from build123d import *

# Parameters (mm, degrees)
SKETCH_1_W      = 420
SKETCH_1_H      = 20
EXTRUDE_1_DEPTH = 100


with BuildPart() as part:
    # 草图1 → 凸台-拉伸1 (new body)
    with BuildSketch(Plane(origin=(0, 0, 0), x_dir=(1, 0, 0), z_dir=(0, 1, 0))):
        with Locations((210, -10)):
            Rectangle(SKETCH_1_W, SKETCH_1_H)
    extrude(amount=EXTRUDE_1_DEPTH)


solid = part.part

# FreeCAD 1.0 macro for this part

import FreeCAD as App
import Part
import Sketcher


def add_polygon(sketch, points):
    """Adds a closed chain of lines whose ends are joined by coincident constraints."""
    first, n = sketch.GeometryCount, len(points)
    for a, b in zip(points, points[1:] + points[:1]):
        sketch.addGeometry(Part.LineSegment(App.Vector(*a, 0), App.Vector(*b, 0)), False)
    for i in range(n):
        sketch.addConstraint(Sketcher.Constraint("Coincident", first + i, 2, first + (i + 1) % n, 1))

doc = App.newDocument("Part")
params = doc.addObject("Spreadsheet::Sheet", "Params")
for row, (alias, value) in enumerate([
    ("sketch1_width", "420 mm"),
    ("sketch1_height", "20 mm"),
    ("pad1_length", "100 mm"),
], start=1):
    params.set(f"A{row}", alias)
    params.set(f"B{row}", "=" + value)
    params.setAlias(f"B{row}", alias)

body = doc.addObject("PartDesign::Body", "Body")

sketch1 = doc.addObject("Sketcher::SketchObject", "Sketch")
body.addObject(sketch1)
sketch1.AttachmentSupport = (doc.XZ_Plane, [""])
sketch1.MapMode = "FlatFace"
add_polygon(sketch1, [(0, 0), (0, 20), (420, 20), (420, 0)])
sketch1.addConstraint([
    Sketcher.Constraint("Vertical", 0),
    Sketcher.Constraint("Horizontal", 1),
    Sketcher.Constraint("Vertical", 2),
    Sketcher.Constraint("Horizontal", 3),
    Sketcher.Constraint("Coincident", 3, 2, -1, 1),
    Sketcher.Constraint("DistanceX", 1, 1, 1, 2, 420.0),
    Sketcher.Constraint("DistanceY", 0, 1, 0, 2, 20.0),
])
sketch1.setExpression("Constraints[9]", "Params.sketch1_width")
sketch1.setExpression("Constraints[10]", "Params.sketch1_height")
pad1 = doc.addObject("PartDesign::Pad", "Pad")
body.addObject(pad1)
pad1.Profile = sketch1
pad1.setExpression("Length", "Params.pad1_length")
pad1.Reversed = True

doc.recompute()
